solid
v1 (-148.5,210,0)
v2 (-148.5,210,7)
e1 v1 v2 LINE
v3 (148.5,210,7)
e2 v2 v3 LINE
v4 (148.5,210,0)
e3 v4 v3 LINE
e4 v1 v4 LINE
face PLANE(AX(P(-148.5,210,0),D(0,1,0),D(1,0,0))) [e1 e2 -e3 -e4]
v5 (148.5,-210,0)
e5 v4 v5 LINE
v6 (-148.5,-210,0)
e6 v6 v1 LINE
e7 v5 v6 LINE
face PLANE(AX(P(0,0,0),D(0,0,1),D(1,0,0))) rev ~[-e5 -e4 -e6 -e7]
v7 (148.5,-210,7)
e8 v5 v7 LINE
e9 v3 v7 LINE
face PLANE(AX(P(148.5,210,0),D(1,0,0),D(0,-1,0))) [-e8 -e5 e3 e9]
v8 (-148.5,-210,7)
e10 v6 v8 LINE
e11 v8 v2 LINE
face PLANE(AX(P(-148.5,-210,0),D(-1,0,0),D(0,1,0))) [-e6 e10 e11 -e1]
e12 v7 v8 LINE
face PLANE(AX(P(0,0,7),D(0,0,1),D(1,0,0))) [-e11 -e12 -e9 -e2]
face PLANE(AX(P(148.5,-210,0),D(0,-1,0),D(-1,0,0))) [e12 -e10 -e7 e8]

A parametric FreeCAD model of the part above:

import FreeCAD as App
import Part
import Sketcher
from FreeCAD import Vector
Q = App.Units.Quantity


def add_polygon(sketch, points):
    """Adds a closed chain of lines whose ends are joined by coincident constraints."""
    first, n = sketch.GeometryCount, len(points)
    for a, b in zip(points, points[1:] + points[:1]):
        sketch.addGeometry(Part.LineSegment(App.Vector(*a, 0), App.Vector(*b, 0)), False)
    for i in range(n):
        sketch.addConstraint(Sketcher.Constraint("Coincident", first + i, 2, first + (i + 1) % n, 1))

doc = App.newDocument("Part")
body = doc.addObject("PartDesign::Body", "Body")

sketch1 = body.newObject("Sketcher::SketchObject", "Sketch")
sketch1.AttachmentSupport = (doc.getObject("XY_Plane"), [""])
sketch1.MapMode = "FlatFace"
add_polygon(sketch1, [(148, 210), (-148, 210), (-148, -210), (148, -210)])
sketch1.addConstraint(Sketcher.Constraint("Horizontal", 0))
sketch1.addConstraint(Sketcher.Constraint("Vertical", 1))
sketch1.addConstraint(Sketcher.Constraint("Horizontal", 2))
sketch1.addConstraint(Sketcher.Constraint("Vertical", 3))
sketch1.addConstraint(Sketcher.Constraint("Symmetric", 0, 2, 2, 2, -1, 1))
sketch1.addConstraint(Sketcher.Constraint("DistanceX", 0, 2, 0, 1, Q("297 mm")))
sketch1.addConstraint(Sketcher.Constraint("DistanceY", 1, 2, 1, 1, Q("420 mm")))
pad1 = body.newObject("PartDesign::Pad", "Pad")
pad1.Profile = sketch1
pad1.Length = 7

doc.recompute()
